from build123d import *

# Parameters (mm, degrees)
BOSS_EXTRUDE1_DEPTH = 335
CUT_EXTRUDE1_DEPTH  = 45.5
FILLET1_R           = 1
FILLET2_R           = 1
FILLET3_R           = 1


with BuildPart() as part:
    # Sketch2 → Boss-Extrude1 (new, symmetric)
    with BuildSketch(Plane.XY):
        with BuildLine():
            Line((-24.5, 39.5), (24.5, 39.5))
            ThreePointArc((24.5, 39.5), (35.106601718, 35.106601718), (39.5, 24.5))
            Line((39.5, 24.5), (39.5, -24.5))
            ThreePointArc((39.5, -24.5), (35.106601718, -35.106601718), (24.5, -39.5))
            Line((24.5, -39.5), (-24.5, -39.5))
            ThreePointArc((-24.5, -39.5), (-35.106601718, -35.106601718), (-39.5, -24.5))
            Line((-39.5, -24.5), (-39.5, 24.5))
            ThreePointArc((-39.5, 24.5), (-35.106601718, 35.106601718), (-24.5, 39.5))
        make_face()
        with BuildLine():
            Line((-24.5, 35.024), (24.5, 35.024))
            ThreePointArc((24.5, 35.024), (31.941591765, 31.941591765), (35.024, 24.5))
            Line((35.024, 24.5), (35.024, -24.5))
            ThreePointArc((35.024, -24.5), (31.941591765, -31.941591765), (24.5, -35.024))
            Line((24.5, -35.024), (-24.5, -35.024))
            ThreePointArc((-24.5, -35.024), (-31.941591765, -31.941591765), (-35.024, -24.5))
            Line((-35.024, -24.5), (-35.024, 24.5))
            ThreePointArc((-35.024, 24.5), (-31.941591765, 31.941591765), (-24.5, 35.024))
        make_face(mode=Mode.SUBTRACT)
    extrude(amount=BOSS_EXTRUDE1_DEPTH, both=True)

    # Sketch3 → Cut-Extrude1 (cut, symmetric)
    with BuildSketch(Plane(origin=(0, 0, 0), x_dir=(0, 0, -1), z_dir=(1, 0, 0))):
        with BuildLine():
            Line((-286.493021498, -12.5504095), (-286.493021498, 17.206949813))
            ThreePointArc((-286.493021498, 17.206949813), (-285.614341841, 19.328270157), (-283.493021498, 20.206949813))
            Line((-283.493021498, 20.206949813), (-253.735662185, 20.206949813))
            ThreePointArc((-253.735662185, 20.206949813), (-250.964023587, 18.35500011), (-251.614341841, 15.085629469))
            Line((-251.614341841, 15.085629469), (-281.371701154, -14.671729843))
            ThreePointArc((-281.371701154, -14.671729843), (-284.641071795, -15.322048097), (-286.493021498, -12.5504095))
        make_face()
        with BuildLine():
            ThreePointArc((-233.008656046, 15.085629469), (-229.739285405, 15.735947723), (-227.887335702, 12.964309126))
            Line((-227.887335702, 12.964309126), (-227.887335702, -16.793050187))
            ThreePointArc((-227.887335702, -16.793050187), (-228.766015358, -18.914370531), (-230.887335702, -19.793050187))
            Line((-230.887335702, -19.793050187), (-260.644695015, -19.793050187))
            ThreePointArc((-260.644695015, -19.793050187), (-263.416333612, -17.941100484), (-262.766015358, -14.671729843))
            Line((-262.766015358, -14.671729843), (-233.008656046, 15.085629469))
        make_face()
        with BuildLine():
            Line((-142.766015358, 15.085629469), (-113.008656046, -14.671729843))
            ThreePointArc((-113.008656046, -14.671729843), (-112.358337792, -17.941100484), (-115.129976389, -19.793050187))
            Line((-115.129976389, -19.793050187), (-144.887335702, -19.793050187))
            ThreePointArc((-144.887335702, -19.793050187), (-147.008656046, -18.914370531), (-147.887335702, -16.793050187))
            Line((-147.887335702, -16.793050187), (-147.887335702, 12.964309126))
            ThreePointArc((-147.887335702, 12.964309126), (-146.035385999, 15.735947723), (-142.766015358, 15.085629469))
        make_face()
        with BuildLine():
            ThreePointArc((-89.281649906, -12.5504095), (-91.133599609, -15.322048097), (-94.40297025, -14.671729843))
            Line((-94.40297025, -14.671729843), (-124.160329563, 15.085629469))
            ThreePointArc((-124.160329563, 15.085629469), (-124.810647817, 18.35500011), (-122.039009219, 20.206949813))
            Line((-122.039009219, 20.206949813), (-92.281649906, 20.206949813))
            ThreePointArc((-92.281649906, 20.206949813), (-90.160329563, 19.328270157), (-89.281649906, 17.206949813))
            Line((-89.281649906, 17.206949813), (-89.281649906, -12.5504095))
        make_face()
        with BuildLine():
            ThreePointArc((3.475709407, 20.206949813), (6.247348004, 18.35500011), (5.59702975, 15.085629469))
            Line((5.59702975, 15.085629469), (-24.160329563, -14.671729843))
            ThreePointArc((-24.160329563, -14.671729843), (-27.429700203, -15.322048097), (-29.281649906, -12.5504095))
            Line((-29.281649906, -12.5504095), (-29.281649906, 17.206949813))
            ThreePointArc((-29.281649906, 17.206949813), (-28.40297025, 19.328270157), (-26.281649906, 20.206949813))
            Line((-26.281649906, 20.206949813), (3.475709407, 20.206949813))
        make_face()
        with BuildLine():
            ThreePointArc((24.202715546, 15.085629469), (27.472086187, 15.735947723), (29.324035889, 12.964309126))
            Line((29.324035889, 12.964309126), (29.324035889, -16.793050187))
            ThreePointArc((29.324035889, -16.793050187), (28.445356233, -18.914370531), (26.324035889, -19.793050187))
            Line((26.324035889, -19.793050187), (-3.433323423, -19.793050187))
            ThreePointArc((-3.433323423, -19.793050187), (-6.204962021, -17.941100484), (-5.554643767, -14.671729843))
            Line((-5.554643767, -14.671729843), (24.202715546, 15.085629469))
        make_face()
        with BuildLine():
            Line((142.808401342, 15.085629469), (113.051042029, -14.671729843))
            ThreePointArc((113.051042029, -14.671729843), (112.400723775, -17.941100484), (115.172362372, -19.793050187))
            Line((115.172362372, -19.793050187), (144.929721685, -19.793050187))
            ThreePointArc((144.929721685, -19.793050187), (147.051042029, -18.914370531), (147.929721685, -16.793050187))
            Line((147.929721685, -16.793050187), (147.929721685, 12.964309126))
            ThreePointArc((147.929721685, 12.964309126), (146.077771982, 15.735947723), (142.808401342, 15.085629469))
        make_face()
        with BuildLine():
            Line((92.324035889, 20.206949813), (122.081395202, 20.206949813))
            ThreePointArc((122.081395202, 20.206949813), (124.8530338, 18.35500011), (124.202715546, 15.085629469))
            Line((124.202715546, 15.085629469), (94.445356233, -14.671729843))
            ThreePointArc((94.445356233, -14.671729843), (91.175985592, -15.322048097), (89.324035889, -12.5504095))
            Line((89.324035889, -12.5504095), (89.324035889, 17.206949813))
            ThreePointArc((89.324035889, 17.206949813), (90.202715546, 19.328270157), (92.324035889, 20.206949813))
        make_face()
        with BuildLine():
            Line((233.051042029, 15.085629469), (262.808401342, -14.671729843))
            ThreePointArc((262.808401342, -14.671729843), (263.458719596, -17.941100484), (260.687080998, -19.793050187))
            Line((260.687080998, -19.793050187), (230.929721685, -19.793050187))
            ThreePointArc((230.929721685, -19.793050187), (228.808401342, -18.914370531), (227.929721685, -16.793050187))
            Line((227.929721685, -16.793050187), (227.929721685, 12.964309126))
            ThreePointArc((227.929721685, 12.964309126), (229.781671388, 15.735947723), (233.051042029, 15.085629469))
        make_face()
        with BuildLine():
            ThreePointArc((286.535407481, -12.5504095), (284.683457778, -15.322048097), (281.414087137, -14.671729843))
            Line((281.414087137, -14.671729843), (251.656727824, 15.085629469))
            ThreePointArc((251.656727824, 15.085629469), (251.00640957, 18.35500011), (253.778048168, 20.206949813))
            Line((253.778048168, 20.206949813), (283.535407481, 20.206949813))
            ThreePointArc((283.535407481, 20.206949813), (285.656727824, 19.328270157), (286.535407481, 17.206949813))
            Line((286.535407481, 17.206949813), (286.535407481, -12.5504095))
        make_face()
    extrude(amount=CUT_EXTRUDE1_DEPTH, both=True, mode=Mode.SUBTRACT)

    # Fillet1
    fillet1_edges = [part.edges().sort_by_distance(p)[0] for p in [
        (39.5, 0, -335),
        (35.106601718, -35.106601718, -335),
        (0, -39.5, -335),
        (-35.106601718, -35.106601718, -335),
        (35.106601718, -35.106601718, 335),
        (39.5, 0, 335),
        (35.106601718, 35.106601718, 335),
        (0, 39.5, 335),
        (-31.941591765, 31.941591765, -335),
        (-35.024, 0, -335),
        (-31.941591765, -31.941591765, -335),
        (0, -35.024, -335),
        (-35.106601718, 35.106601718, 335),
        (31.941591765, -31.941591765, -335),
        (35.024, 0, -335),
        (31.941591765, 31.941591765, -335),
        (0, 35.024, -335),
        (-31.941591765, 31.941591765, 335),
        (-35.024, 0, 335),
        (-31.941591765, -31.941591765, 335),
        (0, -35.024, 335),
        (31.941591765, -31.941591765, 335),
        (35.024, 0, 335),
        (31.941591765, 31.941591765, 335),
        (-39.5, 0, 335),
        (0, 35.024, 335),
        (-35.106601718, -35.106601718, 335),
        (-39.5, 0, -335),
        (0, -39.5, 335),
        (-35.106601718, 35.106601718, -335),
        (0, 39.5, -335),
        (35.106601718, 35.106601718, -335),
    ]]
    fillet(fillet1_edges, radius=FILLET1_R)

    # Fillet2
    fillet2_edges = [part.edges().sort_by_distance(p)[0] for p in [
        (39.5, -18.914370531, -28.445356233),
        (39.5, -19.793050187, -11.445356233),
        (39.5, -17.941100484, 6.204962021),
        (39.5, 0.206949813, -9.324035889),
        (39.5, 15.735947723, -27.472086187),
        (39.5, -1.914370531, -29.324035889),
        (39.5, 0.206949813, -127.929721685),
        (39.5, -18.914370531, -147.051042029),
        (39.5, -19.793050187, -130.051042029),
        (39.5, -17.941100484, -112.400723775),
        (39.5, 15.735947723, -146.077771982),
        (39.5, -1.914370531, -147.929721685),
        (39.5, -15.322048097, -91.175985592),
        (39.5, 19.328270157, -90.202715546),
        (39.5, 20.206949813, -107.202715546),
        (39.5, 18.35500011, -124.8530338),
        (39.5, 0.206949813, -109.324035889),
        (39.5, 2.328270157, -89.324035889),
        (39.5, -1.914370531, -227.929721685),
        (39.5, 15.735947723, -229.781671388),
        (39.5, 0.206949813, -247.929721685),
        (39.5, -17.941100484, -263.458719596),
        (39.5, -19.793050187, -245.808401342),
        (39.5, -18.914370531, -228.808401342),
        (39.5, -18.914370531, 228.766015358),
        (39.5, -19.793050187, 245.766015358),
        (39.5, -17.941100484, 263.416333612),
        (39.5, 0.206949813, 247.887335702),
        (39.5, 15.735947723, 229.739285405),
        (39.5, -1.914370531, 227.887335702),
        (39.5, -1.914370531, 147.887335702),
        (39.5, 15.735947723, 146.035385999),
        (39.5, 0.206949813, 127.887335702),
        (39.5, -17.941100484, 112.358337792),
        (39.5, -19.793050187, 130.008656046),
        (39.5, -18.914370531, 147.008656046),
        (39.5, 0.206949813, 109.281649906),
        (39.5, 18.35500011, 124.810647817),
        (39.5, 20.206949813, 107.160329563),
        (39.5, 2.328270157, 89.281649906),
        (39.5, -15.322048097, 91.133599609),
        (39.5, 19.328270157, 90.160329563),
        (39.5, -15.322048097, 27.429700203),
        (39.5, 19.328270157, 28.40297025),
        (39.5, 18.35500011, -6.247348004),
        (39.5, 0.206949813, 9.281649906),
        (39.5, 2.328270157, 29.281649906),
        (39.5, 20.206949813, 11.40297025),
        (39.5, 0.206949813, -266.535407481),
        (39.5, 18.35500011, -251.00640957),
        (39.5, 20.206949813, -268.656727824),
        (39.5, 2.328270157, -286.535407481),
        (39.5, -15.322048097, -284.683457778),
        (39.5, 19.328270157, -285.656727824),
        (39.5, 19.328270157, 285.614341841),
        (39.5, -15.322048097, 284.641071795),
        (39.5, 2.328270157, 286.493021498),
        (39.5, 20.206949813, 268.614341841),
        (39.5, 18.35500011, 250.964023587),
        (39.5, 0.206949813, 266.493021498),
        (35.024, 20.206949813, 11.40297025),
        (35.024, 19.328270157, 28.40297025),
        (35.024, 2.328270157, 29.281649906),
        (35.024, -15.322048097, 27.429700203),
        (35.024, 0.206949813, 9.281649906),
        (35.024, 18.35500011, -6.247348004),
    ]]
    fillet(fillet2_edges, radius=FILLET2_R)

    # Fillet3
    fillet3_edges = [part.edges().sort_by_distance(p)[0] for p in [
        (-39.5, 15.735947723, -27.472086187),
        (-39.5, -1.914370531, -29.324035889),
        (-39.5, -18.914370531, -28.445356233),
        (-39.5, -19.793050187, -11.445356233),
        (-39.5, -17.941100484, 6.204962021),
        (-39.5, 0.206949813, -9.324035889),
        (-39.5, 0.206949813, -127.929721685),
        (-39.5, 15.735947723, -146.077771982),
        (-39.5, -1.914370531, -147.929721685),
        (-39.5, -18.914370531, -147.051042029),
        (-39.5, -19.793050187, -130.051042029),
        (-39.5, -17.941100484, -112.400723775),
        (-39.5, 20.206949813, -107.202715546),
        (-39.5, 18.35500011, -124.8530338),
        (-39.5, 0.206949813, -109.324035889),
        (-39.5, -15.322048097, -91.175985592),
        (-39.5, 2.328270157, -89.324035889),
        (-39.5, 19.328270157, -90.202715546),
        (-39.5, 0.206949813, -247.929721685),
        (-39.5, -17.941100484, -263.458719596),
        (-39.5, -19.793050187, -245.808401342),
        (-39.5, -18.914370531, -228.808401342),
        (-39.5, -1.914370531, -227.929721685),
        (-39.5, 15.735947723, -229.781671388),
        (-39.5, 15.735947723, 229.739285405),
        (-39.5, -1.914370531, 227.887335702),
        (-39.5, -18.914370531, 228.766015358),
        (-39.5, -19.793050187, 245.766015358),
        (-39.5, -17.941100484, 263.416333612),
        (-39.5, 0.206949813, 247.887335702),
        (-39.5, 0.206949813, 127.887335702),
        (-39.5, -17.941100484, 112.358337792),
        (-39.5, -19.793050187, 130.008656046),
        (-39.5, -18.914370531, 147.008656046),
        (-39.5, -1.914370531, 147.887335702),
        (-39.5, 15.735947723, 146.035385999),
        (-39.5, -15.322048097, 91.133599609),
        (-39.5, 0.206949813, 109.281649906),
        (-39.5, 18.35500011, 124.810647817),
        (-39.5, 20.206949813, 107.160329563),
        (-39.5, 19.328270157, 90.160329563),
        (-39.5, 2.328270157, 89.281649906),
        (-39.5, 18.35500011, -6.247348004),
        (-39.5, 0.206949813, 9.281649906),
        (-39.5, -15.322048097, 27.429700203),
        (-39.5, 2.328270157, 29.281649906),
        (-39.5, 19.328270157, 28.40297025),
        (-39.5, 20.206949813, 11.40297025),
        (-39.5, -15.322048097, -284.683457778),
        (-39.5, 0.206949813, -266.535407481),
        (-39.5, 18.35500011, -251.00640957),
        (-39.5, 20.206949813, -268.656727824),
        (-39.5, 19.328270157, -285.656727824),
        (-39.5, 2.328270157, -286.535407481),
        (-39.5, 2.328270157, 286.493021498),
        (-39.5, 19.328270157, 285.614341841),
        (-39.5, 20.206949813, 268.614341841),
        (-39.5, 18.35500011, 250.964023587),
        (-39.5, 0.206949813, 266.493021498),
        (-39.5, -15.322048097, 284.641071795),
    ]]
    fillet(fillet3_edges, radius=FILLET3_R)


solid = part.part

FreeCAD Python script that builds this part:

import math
import FreeCAD as App
import Part
import Sketcher
from FreeCAD import Vector
Q = App.Units.Quantity


def edges_at(feature, points):
    """Names of the edges that pass closest to the given points."""
    edges = feature.Shape.Edges
    near = lambda p: min(range(len(edges)), key=lambda i: edges[i].distToShape(Part.Vertex(*p))[0])
    return sorted({f"Edge{near(p) + 1}" for p in points})

doc = App.newDocument("Part")
body = doc.addObject("PartDesign::Body", "Body")

# Sketch on XY plane
sketch1 = body.newObject("Sketcher::SketchObject", "Sketch")
sketch1.AttachmentSupport = (doc.getObject("XY_Plane"), [""])
sketch1.MapMode = "FlatFace"
sketch1.addGeometry([
    Part.LineSegment(Vector(24, 40, 0), Vector(-24, 40, 0)),  # 0
    Part.ArcOfCircle(Part.Circle(Vector(-25, 25, 0), Vector(0, 0, 1), 15), math.radians(90), math.radians(180)),  # 1
    Part.LineSegment(Vector(-40, 24, 0), Vector(-40, -24, 0)),  # 2
    Part.ArcOfCircle(Part.Circle(Vector(-25, -25, 0), Vector(0, 0, 1), 15), math.radians(180), math.radians(270)),  # 3
    Part.LineSegment(Vector(-24, -40, 0), Vector(24, -40, 0)),  # 4
    Part.ArcOfCircle(Part.Circle(Vector(25, -25, 0), Vector(0, 0, 1), 15), math.radians(-90), math.radians(0)),  # 5
    Part.LineSegment(Vector(40, -24, 0), Vector(40, 24, 0)),  # 6
    Part.ArcOfCircle(Part.Circle(Vector(25, 25, 0), Vector(0, 0, 1), 15), math.radians(0), math.radians(90)),  # 7
    Part.LineSegment(Vector(-24, 35, 0), Vector(24, 35, 0)),  # 8
    Part.ArcOfCircle(Part.Circle(Vector(24, 24, 0), Vector(0, 0, 1), 11), math.radians(0), math.radians(90)),  # 9
    Part.LineSegment(Vector(35, 24, 0), Vector(35, -24, 0)),  # 10
    Part.ArcOfCircle(Part.Circle(Vector(24, -24, 0), Vector(0, 0, 1), 11), math.radians(-90), math.radians(0)),  # 11
    Part.LineSegment(Vector(24, -35, 0), Vector(-24, -35, 0)),  # 12
    Part.ArcOfCircle(Part.Circle(Vector(-24, -24, 0), Vector(0, 0, 1), 11), math.radians(-180), math.radians(-90)),  # 13
    Part.LineSegment(Vector(-35, -24, 0), Vector(-35, 24, 0)),  # 14
    Part.ArcOfCircle(Part.Circle(Vector(-24, 24, 0), Vector(0, 0, 1), 11), math.radians(90), math.radians(180)),  # 15
], False)
sketch1.addConstraint([
    Sketcher.Constraint("Tangent", 0, 2, 1, 1),
    Sketcher.Constraint("Tangent", 1, 2, 2, 1),
    Sketcher.Constraint("Tangent", 2, 2, 3, 1),
    Sketcher.Constraint("Tangent", 3, 2, 4, 1),
    Sketcher.Constraint("Tangent", 4, 2, 5, 1),
    Sketcher.Constraint("Tangent", 5, 2, 6, 1),
    Sketcher.Constraint("Tangent", 6, 2, 7, 1),
    Sketcher.Constraint("Tangent", 7, 2, 0, 1),
    Sketcher.Constraint("Tangent", 8, 2, 9, 2),
    Sketcher.Constraint("Tangent", 9, 1, 10, 1),
    Sketcher.Constraint("Tangent", 10, 2, 11, 2),
    Sketcher.Constraint("Tangent", 11, 1, 12, 1),
    Sketcher.Constraint("Tangent", 12, 2, 13, 2),
    Sketcher.Constraint("Tangent", 13, 1, 14, 1),
    Sketcher.Constraint("Tangent", 14, 2, 15, 2),
    Sketcher.Constraint("Tangent", 15, 1, 8, 1),
    Sketcher.Constraint("Horizontal", 0),
    Sketcher.Constraint("Vertical", 2),
    Sketcher.Constraint("Horizontal", 4),
    Sketcher.Constraint("Vertical", 6),
    Sketcher.Constraint("Horizontal", 8),
    Sketcher.Constraint("Vertical", 10),
    Sketcher.Constraint("Horizontal", 12),
    Sketcher.Constraint("Vertical", 14),
    Sketcher.Constraint("Coincident", 9, 3, 7, 3),
    Sketcher.Constraint("Coincident", 11, 3, 5, 3),
    Sketcher.Constraint("Coincident", 13, 3, 3, 3),
    Sketcher.Constraint("Equal", 1, 3),
    Sketcher.Constraint("Equal", 3, 5),
    Sketcher.Constraint("Equal", 5, 7),
    Sketcher.Constraint("Equal", 13, 15),
    Sketcher.Constraint("Symmetric", 1, 3, 5, 3, -1, 1),
    Sketcher.Constraint("Equal", 12, 2),
    Sketcher.Constraint("Radius", 1, Q("15 mm")),
    Sketcher.Constraint("DistanceX", 0, 2, 0, 1, Q("49 mm")),
    Sketcher.Constraint("Radius", 9, Q("10.524 mm")),
])
pad1 = body.newObject("PartDesign::Pad", "Pad")
pad1.Profile = sketch1
pad1.Length = 670
pad1.Midplane = True

# Sketch on YZ plane
sketch2 = body.newObject("Sketcher::SketchObject", "Sketch001")
sketch2.AttachmentSupport = (doc.getObject("YZ_Plane"), [""])
sketch2.MapMode = "FlatFace"
sketch2.addGeometry([
    Part.LineSegment(Vector(17.2, 286.5, 0), Vector(-12.6, 286.5, 0)),  # 0
    Part.ArcOfCircle(Part.Circle(Vector(-12.6, 283.5, 0), Vector(0, 0, 1), 3), math.radians(90), math.radians(225)),  # 1
    Part.LineSegment(Vector(-14.7, 281.4, 0), Vector(15.1, 251.6, 0)),  # 2
    Part.ArcOfCircle(Part.Circle(Vector(17.2, 253.7, 0), Vector(0, 0, 1), 3), math.radians(-135), math.radians(0)),  # 3
    Part.LineSegment(Vector(20.2, 253.7, 0), Vector(20.2, 283.5, 0)),  # 4
    Part.ArcOfCircle(Part.Circle(Vector(17.2, 283.5, 0), Vector(0, 0, 1), 3), math.radians(0), math.radians(90)),  # 5
    Part.ArcOfCircle(Part.Circle(Vector(13, 230.9, 0), Vector(0, 0, 1), 3), math.radians(-90), math.radians(45)),  # 6
    Part.LineSegment(Vector(15.1, 233, 0), Vector(-14.7, 262.8, 0)),  # 7
    Part.ArcOfCircle(Part.Circle(Vector(-16.8, 260.6, 0), Vector(0, 0, 1), 3), math.radians(45), math.radians(180)),  # 8
    Part.LineSegment(Vector(-19.8, 260.6, 0), Vector(-19.8, 230.9, 0)),  # 9
    Part.ArcOfCircle(Part.Circle(Vector(-16.8, 230.9, 0), Vector(0, 0, 1), 3), math.radians(180), math.radians(270)),  # 10
    Part.LineSegment(Vector(-16.8, 227.9, 0), Vector(13, 227.9, 0)),  # 11
    Part.LineSegment(Vector(-14.7, 113, 0), Vector(15.1, 142.8, 0)),  # 12
    Part.ArcOfCircle(Part.Circle(Vector(13, 144.9, 0), Vector(0, 0, 1), 3), math.radians(-45), math.radians(90)),  # 13
    Part.LineSegment(Vector(13, 147.9, 0), Vector(-16.8, 147.9, 0)),  # 14
    Part.ArcOfCircle(Part.Circle(Vector(-16.8, 144.9, 0), Vector(0, 0, 1), 3), math.radians(90), math.radians(180)),  # 15
    Part.LineSegment(Vector(-19.8, 144.9, 0), Vector(-19.8, 115.1, 0)),  # 16
    Part.ArcOfCircle(Part.Circle(Vector(-16.8, 115.1, 0), Vector(0, 0, 1), 3), math.radians(-180), math.radians(-45)),  # 17
    Part.ArcOfCircle(Part.Circle(Vector(-12.6, 92.3, 0), Vector(0, 0, 1), 3), math.radians(135), math.radians(270)),  # 18
    Part.LineSegment(Vector(-12.6, 89.3, 0), Vector(17.2, 89.3, 0)),  # 19
    Part.ArcOfCircle(Part.Circle(Vector(17.2, 92.3, 0), Vector(0, 0, 1), 3), math.radians(-90), math.radians(0)),  # 20
    Part.LineSegment(Vector(20.2, 92.3, 0), Vector(20.2, 122, 0)),  # 21
    Part.ArcOfCircle(Part.Circle(Vector(17.2, 122, 0), Vector(0, 0, 1), 3), math.radians(0), math.radians(135)),  # 22
    Part.LineSegment(Vector(15.1, 124.2, 0), Vector(-14.7, 94.4, 0)),  # 23
    Part.ArcOfCircle(Part.Circle(Vector(17.2, -3.5, 0), Vector(0, 0, 1), 3), math.radians(-135), math.radians(0)),  # 24
    Part.LineSegment(Vector(20.2, -3.5, 0), Vector(20.2, 26.3, 0)),  # 25
    Part.ArcOfCircle(Part.Circle(Vector(17.2, 26.3, 0), Vector(0, 0, 1), 3), math.radians(0), math.radians(90)),  # 26
    Part.LineSegment(Vector(17.2, 29.3, 0), Vector(-12.6, 29.3, 0)),  # 27
    Part.ArcOfCircle(Part.Circle(Vector(-12.6, 26.3, 0), Vector(0, 0, 1), 3), math.radians(90), math.radians(225)),  # 28
    Part.LineSegment(Vector(-14.7, 24.2, 0), Vector(15.1, -5.6, 0)),  # 29
    Part.ArcOfCircle(Part.Circle(Vector(13, -26.3, 0), Vector(0, 0, 1), 3), math.radians(-90), math.radians(45)),  # 30
    Part.LineSegment(Vector(15.1, -24.2, 0), Vector(-14.7, 5.6, 0)),  # 31
    Part.ArcOfCircle(Part.Circle(Vector(-16.8, 3.4, 0), Vector(0, 0, 1), 3), math.radians(45), math.radians(180)),  # 32
    Part.LineSegment(Vector(-19.8, 3.4, 0), Vector(-19.8, -26.3, 0)),  # 33
    Part.ArcOfCircle(Part.Circle(Vector(-16.8, -26.3, 0), Vector(0, 0, 1), 3), math.radians(180), math.radians(270)),  # 34
    Part.LineSegment(Vector(-16.8, -29.3, 0), Vector(13, -29.3, 0)),  # 35
    Part.LineSegment(Vector(15.1, -142.8, 0), Vector(-14.7, -113.1, 0)),  # 36
    Part.ArcOfCircle(Part.Circle(Vector(-16.8, -115.2, 0), Vector(0, 0, 1), 3), math.radians(45), math.radians(180)),  # 37
    Part.LineSegment(Vector(-19.8, -115.2, 0), Vector(-19.8, -144.9, 0)),  # 38
    Part.ArcOfCircle(Part.Circle(Vector(-16.8, -144.9, 0), Vector(0, 0, 1), 3), math.radians(180), math.radians(270)),  # 39
    Part.LineSegment(Vector(-16.8, -147.9, 0), Vector(13, -147.9, 0)),  # 40
    Part.ArcOfCircle(Part.Circle(Vector(13, -144.9, 0), Vector(0, 0, 1), 3), math.radians(-90), math.radians(45)),  # 41
    Part.LineSegment(Vector(20.2, -122.1, 0), Vector(20.2, -92.3, 0)),  # 42
    Part.ArcOfCircle(Part.Circle(Vector(17.2, -92.3, 0), Vector(0, 0, 1), 3), math.radians(0), math.radians(90)),  # 43
    Part.LineSegment(Vector(17.2, -89.3, 0), Vector(-12.6, -89.3, 0)),  # 44
    Part.ArcOfCircle(Part.Circle(Vector(-12.6, -92.3, 0), Vector(0, 0, 1), 3), math.radians(90), math.radians(225)),  # 45
    Part.LineSegment(Vector(-14.7, -94.4, 0), Vector(15.1, -124.2, 0)),  # 46
    Part.ArcOfCircle(Part.Circle(Vector(17.2, -122.1, 0), Vector(0, 0, 1), 3), math.radians(-135), math.radians(0)),  # 47
    Part.LineSegment(Vector(-14.7, -262.8, 0), Vector(15.1, -233.1, 0)),  # 48
    Part.ArcOfCircle(Part.Circle(Vector(13, -230.9, 0), Vector(0, 0, 1), 3), math.radians(-45), math.radians(90)),  # 49
    Part.LineSegment(Vector(13, -227.9, 0), Vector(-16.8, -227.9, 0)),  # 50
    Part.ArcOfCircle(Part.Circle(Vector(-16.8, -230.9, 0), Vector(0, 0, 1), 3), math.radians(90), math.radians(180)),  # 51
    Part.LineSegment(Vector(-19.8, -230.9, 0), Vector(-19.8, -260.7, 0)),  # 52
    Part.ArcOfCircle(Part.Circle(Vector(-16.8, -260.7, 0), Vector(0, 0, 1), 3), math.radians(180), math.radians(315)),  # 53
    Part.ArcOfCircle(Part.Circle(Vector(-12.6, -283.5, 0), Vector(0, 0, 1), 3), math.radians(135), math.radians(270)),  # 54
    Part.LineSegment(Vector(-12.6, -286.5, 0), Vector(17.2, -286.5, 0)),  # 55
    Part.ArcOfCircle(Part.Circle(Vector(17.2, -283.5, 0), Vector(0, 0, 1), 3), math.radians(-90), math.radians(0)),  # 56
    Part.LineSegment(Vector(20.2, -283.5, 0), Vector(20.2, -253.8, 0)),  # 57
    Part.ArcOfCircle(Part.Circle(Vector(17.2, -253.8, 0), Vector(0, 0, 1), 3), math.radians(0), math.radians(135)),  # 58
    Part.LineSegment(Vector(15.1, -251.7, 0), Vector(-14.7, -281.4, 0)),  # 59
], False)
sketch2.addConstraint([
    Sketcher.Constraint("Tangent", 0, 2, 1, 1),
    Sketcher.Constraint("Tangent", 1, 2, 2, 1),
    Sketcher.Constraint("Tangent", 2, 2, 3, 1),
    Sketcher.Constraint("Tangent", 3, 2, 4, 1),
    Sketcher.Constraint("Tangent", 4, 2, 5, 1),
    Sketcher.Constraint("Tangent", 5, 2, 0, 1),
    Sketcher.Constraint("Tangent", 6, 2, 7, 1),
    Sketcher.Constraint("Tangent", 7, 2, 8, 1),
    Sketcher.Constraint("Tangent", 8, 2, 9, 1),
    Sketcher.Constraint("Tangent", 9, 2, 10, 1),
    Sketcher.Constraint("Tangent", 10, 2, 11, 1),
    Sketcher.Constraint("Tangent", 11, 2, 6, 1),
    Sketcher.Constraint("Tangent", 12, 2, 13, 1),
    Sketcher.Constraint("Tangent", 13, 2, 14, 1),
    Sketcher.Constraint("Tangent", 14, 2, 15, 1),
    Sketcher.Constraint("Tangent", 15, 2, 16, 1),
    Sketcher.Constraint("Tangent", 16, 2, 17, 1),
    Sketcher.Constraint("Tangent", 17, 2, 12, 1),
    Sketcher.Constraint("Tangent", 18, 2, 19, 1),
    Sketcher.Constraint("Tangent", 19, 2, 20, 1),
    Sketcher.Constraint("Tangent", 20, 2, 21, 1),
    Sketcher.Constraint("Tangent", 21, 2, 22, 1),
    Sketcher.Constraint("Tangent", 22, 2, 23, 1),
    Sketcher.Constraint("Tangent", 23, 2, 18, 1),
    Sketcher.Constraint("Tangent", 24, 2, 25, 1),
    Sketcher.Constraint("Tangent", 25, 2, 26, 1),
    Sketcher.Constraint("Tangent", 26, 2, 27, 1),
    Sketcher.Constraint("Tangent", 27, 2, 28, 1),
    Sketcher.Constraint("Tangent", 28, 2, 29, 1),
    Sketcher.Constraint("Tangent", 29, 2, 24, 1),
    Sketcher.Constraint("Tangent", 30, 2, 31, 1),
    Sketcher.Constraint("Tangent", 31, 2, 32, 1),
    Sketcher.Constraint("Tangent", 32, 2, 33, 1),
    Sketcher.Constraint("Tangent", 33, 2, 34, 1),
    Sketcher.Constraint("Tangent", 34, 2, 35, 1),
    Sketcher.Constraint("Tangent", 35, 2, 30, 1),
    Sketcher.Constraint("Tangent", 36, 2, 37, 1),
    Sketcher.Constraint("Tangent", 37, 2, 38, 1),
    Sketcher.Constraint("Tangent", 38, 2, 39, 1),
    Sketcher.Constraint("Tangent", 39, 2, 40, 1),
    Sketcher.Constraint("Tangent", 40, 2, 41, 1),
    Sketcher.Constraint("Tangent", 41, 2, 36, 1),
    Sketcher.Constraint("Tangent", 42, 2, 43, 1),
    Sketcher.Constraint("Tangent", 43, 2, 44, 1),
    Sketcher.Constraint("Tangent", 44, 2, 45, 1),
    Sketcher.Constraint("Tangent", 45, 2, 46, 1),
    Sketcher.Constraint("Tangent", 46, 2, 47, 1),
    Sketcher.Constraint("Tangent", 47, 2, 42, 1),
    Sketcher.Constraint("Tangent", 48, 2, 49, 1),
    Sketcher.Constraint("Tangent", 49, 2, 50, 1),
    Sketcher.Constraint("Tangent", 50, 2, 51, 1),
    Sketcher.Constraint("Tangent", 51, 2, 52, 1),
    Sketcher.Constraint("Tangent", 52, 2, 53, 1),
    Sketcher.Constraint("Tangent", 53, 2, 48, 1),
    Sketcher.Constraint("Tangent", 54, 2, 55, 1),
    Sketcher.Constraint("Tangent", 55, 2, 56, 1),
    Sketcher.Constraint("Tangent", 56, 2, 57, 1),
    Sketcher.Constraint("Tangent", 57, 2, 58, 1),
    Sketcher.Constraint("Tangent", 58, 2, 59, 1),
    Sketcher.Constraint("Tangent", 59, 2, 54, 1),
    Sketcher.Constraint("Horizontal", 0),
    Sketcher.Constraint("Vertical", 4),
    Sketcher.Constraint("Vertical", 9),
    Sketcher.Constraint("Horizontal", 11),
    Sketcher.Constraint("Horizontal", 14),
    Sketcher.Constraint("Vertical", 16),
    Sketcher.Constraint("Horizontal", 19),
    Sketcher.Constraint("Vertical", 21),
    Sketcher.Constraint("Vertical", 25),
    Sketcher.Constraint("Horizontal", 27),
    Sketcher.Constraint("Vertical", 33),
    Sketcher.Constraint("Horizontal", 35),
    Sketcher.Constraint("Vertical", 38),
    Sketcher.Constraint("Horizontal", 40),
    Sketcher.Constraint("Vertical", 42),
    Sketcher.Constraint("Horizontal", 44),
    Sketcher.Constraint("Horizontal", 50),
    Sketcher.Constraint("Vertical", 52),
    Sketcher.Constraint("Horizontal", 55),
    Sketcher.Constraint("Vertical", 57),
    Sketcher.Constraint("Equal", 1, 3),
    Sketcher.Constraint("Equal", 3, 5),
    Sketcher.Constraint("Equal", 5, 6),
    Sketcher.Constraint("Equal", 6, 8),
    Sketcher.Constraint("Equal", 8, 10),
    Sketcher.Constraint("Equal", 10, 13),
    Sketcher.Constraint("Equal", 13, 15),
    Sketcher.Constraint("Equal", 15, 17),
    Sketcher.Constraint("Equal", 17, 18),
    Sketcher.Constraint("Equal", 18, 20),
    Sketcher.Constraint("Equal", 20, 22),
    Sketcher.Constraint("Equal", 22, 24),
    Sketcher.Constraint("Equal", 24, 26),
    Sketcher.Constraint("Equal", 26, 28),
    Sketcher.Constraint("Equal", 28, 30),
    Sketcher.Constraint("Equal", 30, 32),
    Sketcher.Constraint("Equal", 32, 34),
    Sketcher.Constraint("Equal", 34, 37),
    Sketcher.Constraint("Equal", 37, 39),
    Sketcher.Constraint("Equal", 39, 41),
    Sketcher.Constraint("Equal", 41, 43),
    Sketcher.Constraint("Equal", 43, 45),
    Sketcher.Constraint("Equal", 45, 47),
    Sketcher.Constraint("Equal", 47, 49),
    Sketcher.Constraint("Equal", 49, 51),
    Sketcher.Constraint("Equal", 51, 53),
    Sketcher.Constraint("Equal", 53, 54),
    Sketcher.Constraint("Equal", 54, 56),
    Sketcher.Constraint("Equal", 56, 58),
    Sketcher.Constraint("Parallel", 2, 7),
    Sketcher.Constraint("Perpendicular", 7, 12),
    Sketcher.Constraint("Parallel", 12, 23),
    Sketcher.Constraint("Perpendicular", 23, 29),
    Sketcher.Constraint("Parallel", 29, 31),
    Sketcher.Constraint("Parallel", 31, 36),
    Sketcher.Constraint("Parallel", 36, 46),
    Sketcher.Constraint("Perpendicular", 46, 48),
    Sketcher.Constraint("Parallel", 48, 59),
    Sketcher.Constraint("Vertical", 6, 3, 13, 3),
    Sketcher.Constraint("Vertical", 10, 3, 15, 3),
    Sketcher.Constraint("Vertical", 1, 3, 18, 3),
    Sketcher.Constraint("Vertical", 5, 3, 20, 3),
    Sketcher.Constraint("Vertical", 22, 3, 24, 3),
    Sketcher.Constraint("Vertical", 18, 3, 28, 3),
    Sketcher.Constraint("Vertical", 13, 3, 30, 3),
    Sketcher.Constraint("Vertical", 17, 3, 32, 3),
    Sketcher.Constraint("Vertical", 34, 3, 37, 3),
    Sketcher.Constraint("Vertical", 30, 3, 41, 3),
    Sketcher.Constraint("Vertical", 26, 3, 43, 3),
    Sketcher.Constraint("Vertical", 28, 3, 45, 3),
    Sketcher.Constraint("Vertical", 41, 3, 49, 3),
    Sketcher.Constraint("Vertical", 39, 3, 51, 3),
    Sketcher.Constraint("Vertical", 45, 3, 54, 3),
    Sketcher.Constraint("Vertical", 47, 3, 56, 3),
    Sketcher.Constraint("Vertical", 2, 2, 6, 2),
    Sketcher.Constraint("Vertical", 1, 2, 7, 2),
    Sketcher.Constraint("Vertical", 6, 2, 12, 2),
    Sketcher.Constraint("Radius", 1, Q("3 mm")),
    Sketcher.Constraint("DistanceX", 0, 2, 0, 1, Q("29.757359 mm")),
    Sketcher.Constraint("DistanceY", -1, 1, 1, 2, Q("281.371701 mm")),
    Sketcher.Constraint("DistanceY", 41, 2, -1, 1, Q("142.808401 mm")),
    Sketcher.Constraint("DistanceY", 53, 2, -1, 1, Q("262.808401 mm")),
    Sketcher.Constraint("DistanceX", 1, 3, -1, 1, Q("12.550409 mm")),
    Sketcher.Constraint("DistanceY", -1, 1, 18, 3, Q("92.28165 mm")),
    Sketcher.Constraint("DistanceY", 24, 3, -1, 1, Q("3.475709 mm")),
    Sketcher.Constraint("DistanceY", 58, 3, -1, 1, Q("253.778048 mm")),
    Sketcher.Constraint("DistanceY", -1, 1, 6, 3, Q("230.887336 mm")),
    Sketcher.Constraint("DistanceY", -1, 1, 13, 3, Q("144.887336 mm")),
    Sketcher.Constraint("DistanceY", 30, 3, -1, 1, Q("26.324036 mm")),
    Sketcher.Constraint("DistanceY", 43, 3, -1, 1, Q("92.324036 mm")),
])
pocket1 = body.newObject("PartDesign::Pocket", "Pocket")
pocket1.Profile = sketch2
pocket1.Length = 91
pocket1.Midplane = True
doc.recompute()

fillet = body.newObject("PartDesign::Fillet", "Fillet")
fillet.Base = (pocket1, edges_at(pocket1, [
    (39.5, 0, -335),
    (35.107, -35.107, -335),
    (0, -39.5, -335),
    (-35.107, -35.107, -335),
    (35.107, -35.107, 335),
    (39.5, 0, 335),
    (35.107, 35.107, 335),
    (0, 39.5, 335),
    (-31.942, 31.942, -335),
    (-35.024, 0, -335),
    (-31.942, -31.942, -335),
    (0, -35.024, -335),
    (-35.107, 35.107, 335),
    (31.942, -31.942, -335),
    (35.024, 0, -335),
    (31.942, 31.942, -335),
    (0, 35.024, -335),
    (-31.942, 31.942, 335),
    (-35.024, 0, 335),
    (-31.942, -31.942, 335),
    (0, -35.024, 335),
    (31.942, -31.942, 335),
    (35.024, 0, 335),
    (31.942, 31.942, 335),
    (-39.5, 0, 335),
    (0, 35.024, 335),
    (-35.107, -35.107, 335),
    (-39.5, 0, -335),
    (0, -39.5, 335),
    (-35.107, 35.107, -335),
    (0, 39.5, -335),
    (35.107, 35.107, -335),
]))
fillet.Radius = 1
doc.recompute()

fillet2 = body.newObject("PartDesign::Fillet", "Fillet001")
fillet2.Base = (fillet, edges_at(fillet, [
    (39.5, -18.914, -28.445),
    (39.5, -19.793, -11.445),
    (39.5, -17.941, 6.205),
    (39.5, 0.207, -9.324),
    (39.5, 15.736, -27.472),
    (39.5, -1.914, -29.324),
    (39.5, 0.207, -127.93),
    (39.5, -18.914, -147.051),
    (39.5, -19.793, -130.051),
    (39.5, -17.941, -112.401),
    (39.5, 15.736, -146.078),
    (39.5, -1.914, -147.93),
    (39.5, -15.322, -91.176),
    (39.5, 19.328, -90.203),
    (39.5, 20.207, -107.203),
    (39.5, 18.355, -124.853),
    (39.5, 0.207, -109.324),
    (39.5, 2.328, -89.324),
    (39.5, -1.914, -227.93),
    (39.5, 15.736, -229.782),
    (39.5, 0.207, -247.93),
    (39.5, -17.941, -263.459),
    (39.5, -19.793, -245.808),
    (39.5, -18.914, -228.808),
    (39.5, -18.914, 228.766),
    (39.5, -19.793, 245.766),
    (39.5, -17.941, 263.416),
    (39.5, 0.207, 247.887),
    (39.5, 15.736, 229.739),
    (39.5, -1.914, 227.887),
    (39.5, -1.914, 147.887),
    (39.5, 15.736, 146.035),
    (39.5, 0.207, 127.887),
    (39.5, -17.941, 112.358),
    (39.5, -19.793, 130.009),
    (39.5, -18.914, 147.009),
    (39.5, 0.207, 109.282),
    (39.5, 18.355, 124.811),
    (39.5, 20.207, 107.16),
    (39.5, 2.328, 89.282),
    (39.5, -15.322, 91.134),
    (39.5, 19.328, 90.16),
    (39.5, -15.322, 27.43),
    (39.5, 19.328, 28.403),
    (39.5, 18.355, -6.247),
    (39.5, 0.207, 9.282),
    (39.5, 2.328, 29.282),
    (39.5, 20.207, 11.403),
    (39.5, 0.207, -266.535),
    (39.5, 18.355, -251.006),
    (39.5, 20.207, -268.657),
    (39.5, 2.328, -286.535),
    (39.5, -15.322, -284.683),
    (39.5, 19.328, -285.657),
    (39.5, 19.328, 285.614),
    (39.5, -15.322, 284.641),
    (39.5, 2.328, 286.493),
    (39.5, 20.207, 268.614),
    (39.5, 18.355, 250.964),
    (39.5, 0.207, 266.493),
    (35.024, 20.207, 11.403),
    (35.024, 19.328, 28.403),
    (35.024, 2.328, 29.282),
    (35.024, -15.322, 27.43),
    (35.024, 0.207, 9.282),
    (35.024, 18.355, -6.247),
]))
fillet2.Radius = 1
doc.recompute()

fillet3 = body.newObject("PartDesign::Fillet", "Fillet002")
fillet3.Base = (fillet2, edges_at(fillet2, [
    (-39.5, 15.736, -27.472),
    (-39.5, -1.914, -29.324),
    (-39.5, -18.914, -28.445),
    (-39.5, -19.793, -11.445),
    (-39.5, -17.941, 6.205),
    (-39.5, 0.207, -9.324),
    (-39.5, 0.207, -127.93),
    (-39.5, 15.736, -146.078),
    (-39.5, -1.914, -147.93),
    (-39.5, -18.914, -147.051),
    (-39.5, -19.793, -130.051),
    (-39.5, -17.941, -112.401),
    (-39.5, 20.207, -107.203),
    (-39.5, 18.355, -124.853),
    (-39.5, 0.207, -109.324),
    (-39.5, -15.322, -91.176),
    (-39.5, 2.328, -89.324),
    (-39.5, 19.328, -90.203),
    (-39.5, 0.207, -247.93),
    (-39.5, -17.941, -263.459),
    (-39.5, -19.793, -245.808),
    (-39.5, -18.914, -228.808),
    (-39.5, -1.914, -227.93),
    (-39.5, 15.736, -229.782),
    (-39.5, 15.736, 229.739),
    (-39.5, -1.914, 227.887),
    (-39.5, -18.914, 228.766),
    (-39.5, -19.793, 245.766),
    (-39.5, -17.941, 263.416),
    (-39.5, 0.207, 247.887),
    (-39.5, 0.207, 127.887),
    (-39.5, -17.941, 112.358),
    (-39.5, -19.793, 130.009),
    (-39.5, -18.914, 147.009),
    (-39.5, -1.914, 147.887),
    (-39.5, 15.736, 146.035),
    (-39.5, -15.322, 91.134),
    (-39.5, 0.207, 109.282),
    (-39.5, 18.355, 124.811),
    (-39.5, 20.207, 107.16),
    (-39.5, 19.328, 90.16),
    (-39.5, 2.328, 89.282),
    (-39.5, 18.355, -6.247),
    (-39.5, 0.207, 9.282),
    (-39.5, -15.322, 27.43),
    (-39.5, 2.328, 29.282),
    (-39.5, 19.328, 28.403),
    (-39.5, 20.207, 11.403),
    (-39.5, -15.322, -284.683),
    (-39.5, 0.207, -266.535),
    (-39.5, 18.355, -251.006),
    (-39.5, 20.207, -268.657),
    (-39.5, 19.328, -285.657),
    (-39.5, 2.328, -286.535),
    (-39.5, 2.328, 286.493),
    (-39.5, 19.328, 285.614),
    (-39.5, 20.207, 268.614),
    (-39.5, 18.355, 250.964),
    (-39.5, 0.207, 266.493),
    (-39.5, -15.322, 284.641),
]))
fillet3.Radius = 1

doc.recompute()
